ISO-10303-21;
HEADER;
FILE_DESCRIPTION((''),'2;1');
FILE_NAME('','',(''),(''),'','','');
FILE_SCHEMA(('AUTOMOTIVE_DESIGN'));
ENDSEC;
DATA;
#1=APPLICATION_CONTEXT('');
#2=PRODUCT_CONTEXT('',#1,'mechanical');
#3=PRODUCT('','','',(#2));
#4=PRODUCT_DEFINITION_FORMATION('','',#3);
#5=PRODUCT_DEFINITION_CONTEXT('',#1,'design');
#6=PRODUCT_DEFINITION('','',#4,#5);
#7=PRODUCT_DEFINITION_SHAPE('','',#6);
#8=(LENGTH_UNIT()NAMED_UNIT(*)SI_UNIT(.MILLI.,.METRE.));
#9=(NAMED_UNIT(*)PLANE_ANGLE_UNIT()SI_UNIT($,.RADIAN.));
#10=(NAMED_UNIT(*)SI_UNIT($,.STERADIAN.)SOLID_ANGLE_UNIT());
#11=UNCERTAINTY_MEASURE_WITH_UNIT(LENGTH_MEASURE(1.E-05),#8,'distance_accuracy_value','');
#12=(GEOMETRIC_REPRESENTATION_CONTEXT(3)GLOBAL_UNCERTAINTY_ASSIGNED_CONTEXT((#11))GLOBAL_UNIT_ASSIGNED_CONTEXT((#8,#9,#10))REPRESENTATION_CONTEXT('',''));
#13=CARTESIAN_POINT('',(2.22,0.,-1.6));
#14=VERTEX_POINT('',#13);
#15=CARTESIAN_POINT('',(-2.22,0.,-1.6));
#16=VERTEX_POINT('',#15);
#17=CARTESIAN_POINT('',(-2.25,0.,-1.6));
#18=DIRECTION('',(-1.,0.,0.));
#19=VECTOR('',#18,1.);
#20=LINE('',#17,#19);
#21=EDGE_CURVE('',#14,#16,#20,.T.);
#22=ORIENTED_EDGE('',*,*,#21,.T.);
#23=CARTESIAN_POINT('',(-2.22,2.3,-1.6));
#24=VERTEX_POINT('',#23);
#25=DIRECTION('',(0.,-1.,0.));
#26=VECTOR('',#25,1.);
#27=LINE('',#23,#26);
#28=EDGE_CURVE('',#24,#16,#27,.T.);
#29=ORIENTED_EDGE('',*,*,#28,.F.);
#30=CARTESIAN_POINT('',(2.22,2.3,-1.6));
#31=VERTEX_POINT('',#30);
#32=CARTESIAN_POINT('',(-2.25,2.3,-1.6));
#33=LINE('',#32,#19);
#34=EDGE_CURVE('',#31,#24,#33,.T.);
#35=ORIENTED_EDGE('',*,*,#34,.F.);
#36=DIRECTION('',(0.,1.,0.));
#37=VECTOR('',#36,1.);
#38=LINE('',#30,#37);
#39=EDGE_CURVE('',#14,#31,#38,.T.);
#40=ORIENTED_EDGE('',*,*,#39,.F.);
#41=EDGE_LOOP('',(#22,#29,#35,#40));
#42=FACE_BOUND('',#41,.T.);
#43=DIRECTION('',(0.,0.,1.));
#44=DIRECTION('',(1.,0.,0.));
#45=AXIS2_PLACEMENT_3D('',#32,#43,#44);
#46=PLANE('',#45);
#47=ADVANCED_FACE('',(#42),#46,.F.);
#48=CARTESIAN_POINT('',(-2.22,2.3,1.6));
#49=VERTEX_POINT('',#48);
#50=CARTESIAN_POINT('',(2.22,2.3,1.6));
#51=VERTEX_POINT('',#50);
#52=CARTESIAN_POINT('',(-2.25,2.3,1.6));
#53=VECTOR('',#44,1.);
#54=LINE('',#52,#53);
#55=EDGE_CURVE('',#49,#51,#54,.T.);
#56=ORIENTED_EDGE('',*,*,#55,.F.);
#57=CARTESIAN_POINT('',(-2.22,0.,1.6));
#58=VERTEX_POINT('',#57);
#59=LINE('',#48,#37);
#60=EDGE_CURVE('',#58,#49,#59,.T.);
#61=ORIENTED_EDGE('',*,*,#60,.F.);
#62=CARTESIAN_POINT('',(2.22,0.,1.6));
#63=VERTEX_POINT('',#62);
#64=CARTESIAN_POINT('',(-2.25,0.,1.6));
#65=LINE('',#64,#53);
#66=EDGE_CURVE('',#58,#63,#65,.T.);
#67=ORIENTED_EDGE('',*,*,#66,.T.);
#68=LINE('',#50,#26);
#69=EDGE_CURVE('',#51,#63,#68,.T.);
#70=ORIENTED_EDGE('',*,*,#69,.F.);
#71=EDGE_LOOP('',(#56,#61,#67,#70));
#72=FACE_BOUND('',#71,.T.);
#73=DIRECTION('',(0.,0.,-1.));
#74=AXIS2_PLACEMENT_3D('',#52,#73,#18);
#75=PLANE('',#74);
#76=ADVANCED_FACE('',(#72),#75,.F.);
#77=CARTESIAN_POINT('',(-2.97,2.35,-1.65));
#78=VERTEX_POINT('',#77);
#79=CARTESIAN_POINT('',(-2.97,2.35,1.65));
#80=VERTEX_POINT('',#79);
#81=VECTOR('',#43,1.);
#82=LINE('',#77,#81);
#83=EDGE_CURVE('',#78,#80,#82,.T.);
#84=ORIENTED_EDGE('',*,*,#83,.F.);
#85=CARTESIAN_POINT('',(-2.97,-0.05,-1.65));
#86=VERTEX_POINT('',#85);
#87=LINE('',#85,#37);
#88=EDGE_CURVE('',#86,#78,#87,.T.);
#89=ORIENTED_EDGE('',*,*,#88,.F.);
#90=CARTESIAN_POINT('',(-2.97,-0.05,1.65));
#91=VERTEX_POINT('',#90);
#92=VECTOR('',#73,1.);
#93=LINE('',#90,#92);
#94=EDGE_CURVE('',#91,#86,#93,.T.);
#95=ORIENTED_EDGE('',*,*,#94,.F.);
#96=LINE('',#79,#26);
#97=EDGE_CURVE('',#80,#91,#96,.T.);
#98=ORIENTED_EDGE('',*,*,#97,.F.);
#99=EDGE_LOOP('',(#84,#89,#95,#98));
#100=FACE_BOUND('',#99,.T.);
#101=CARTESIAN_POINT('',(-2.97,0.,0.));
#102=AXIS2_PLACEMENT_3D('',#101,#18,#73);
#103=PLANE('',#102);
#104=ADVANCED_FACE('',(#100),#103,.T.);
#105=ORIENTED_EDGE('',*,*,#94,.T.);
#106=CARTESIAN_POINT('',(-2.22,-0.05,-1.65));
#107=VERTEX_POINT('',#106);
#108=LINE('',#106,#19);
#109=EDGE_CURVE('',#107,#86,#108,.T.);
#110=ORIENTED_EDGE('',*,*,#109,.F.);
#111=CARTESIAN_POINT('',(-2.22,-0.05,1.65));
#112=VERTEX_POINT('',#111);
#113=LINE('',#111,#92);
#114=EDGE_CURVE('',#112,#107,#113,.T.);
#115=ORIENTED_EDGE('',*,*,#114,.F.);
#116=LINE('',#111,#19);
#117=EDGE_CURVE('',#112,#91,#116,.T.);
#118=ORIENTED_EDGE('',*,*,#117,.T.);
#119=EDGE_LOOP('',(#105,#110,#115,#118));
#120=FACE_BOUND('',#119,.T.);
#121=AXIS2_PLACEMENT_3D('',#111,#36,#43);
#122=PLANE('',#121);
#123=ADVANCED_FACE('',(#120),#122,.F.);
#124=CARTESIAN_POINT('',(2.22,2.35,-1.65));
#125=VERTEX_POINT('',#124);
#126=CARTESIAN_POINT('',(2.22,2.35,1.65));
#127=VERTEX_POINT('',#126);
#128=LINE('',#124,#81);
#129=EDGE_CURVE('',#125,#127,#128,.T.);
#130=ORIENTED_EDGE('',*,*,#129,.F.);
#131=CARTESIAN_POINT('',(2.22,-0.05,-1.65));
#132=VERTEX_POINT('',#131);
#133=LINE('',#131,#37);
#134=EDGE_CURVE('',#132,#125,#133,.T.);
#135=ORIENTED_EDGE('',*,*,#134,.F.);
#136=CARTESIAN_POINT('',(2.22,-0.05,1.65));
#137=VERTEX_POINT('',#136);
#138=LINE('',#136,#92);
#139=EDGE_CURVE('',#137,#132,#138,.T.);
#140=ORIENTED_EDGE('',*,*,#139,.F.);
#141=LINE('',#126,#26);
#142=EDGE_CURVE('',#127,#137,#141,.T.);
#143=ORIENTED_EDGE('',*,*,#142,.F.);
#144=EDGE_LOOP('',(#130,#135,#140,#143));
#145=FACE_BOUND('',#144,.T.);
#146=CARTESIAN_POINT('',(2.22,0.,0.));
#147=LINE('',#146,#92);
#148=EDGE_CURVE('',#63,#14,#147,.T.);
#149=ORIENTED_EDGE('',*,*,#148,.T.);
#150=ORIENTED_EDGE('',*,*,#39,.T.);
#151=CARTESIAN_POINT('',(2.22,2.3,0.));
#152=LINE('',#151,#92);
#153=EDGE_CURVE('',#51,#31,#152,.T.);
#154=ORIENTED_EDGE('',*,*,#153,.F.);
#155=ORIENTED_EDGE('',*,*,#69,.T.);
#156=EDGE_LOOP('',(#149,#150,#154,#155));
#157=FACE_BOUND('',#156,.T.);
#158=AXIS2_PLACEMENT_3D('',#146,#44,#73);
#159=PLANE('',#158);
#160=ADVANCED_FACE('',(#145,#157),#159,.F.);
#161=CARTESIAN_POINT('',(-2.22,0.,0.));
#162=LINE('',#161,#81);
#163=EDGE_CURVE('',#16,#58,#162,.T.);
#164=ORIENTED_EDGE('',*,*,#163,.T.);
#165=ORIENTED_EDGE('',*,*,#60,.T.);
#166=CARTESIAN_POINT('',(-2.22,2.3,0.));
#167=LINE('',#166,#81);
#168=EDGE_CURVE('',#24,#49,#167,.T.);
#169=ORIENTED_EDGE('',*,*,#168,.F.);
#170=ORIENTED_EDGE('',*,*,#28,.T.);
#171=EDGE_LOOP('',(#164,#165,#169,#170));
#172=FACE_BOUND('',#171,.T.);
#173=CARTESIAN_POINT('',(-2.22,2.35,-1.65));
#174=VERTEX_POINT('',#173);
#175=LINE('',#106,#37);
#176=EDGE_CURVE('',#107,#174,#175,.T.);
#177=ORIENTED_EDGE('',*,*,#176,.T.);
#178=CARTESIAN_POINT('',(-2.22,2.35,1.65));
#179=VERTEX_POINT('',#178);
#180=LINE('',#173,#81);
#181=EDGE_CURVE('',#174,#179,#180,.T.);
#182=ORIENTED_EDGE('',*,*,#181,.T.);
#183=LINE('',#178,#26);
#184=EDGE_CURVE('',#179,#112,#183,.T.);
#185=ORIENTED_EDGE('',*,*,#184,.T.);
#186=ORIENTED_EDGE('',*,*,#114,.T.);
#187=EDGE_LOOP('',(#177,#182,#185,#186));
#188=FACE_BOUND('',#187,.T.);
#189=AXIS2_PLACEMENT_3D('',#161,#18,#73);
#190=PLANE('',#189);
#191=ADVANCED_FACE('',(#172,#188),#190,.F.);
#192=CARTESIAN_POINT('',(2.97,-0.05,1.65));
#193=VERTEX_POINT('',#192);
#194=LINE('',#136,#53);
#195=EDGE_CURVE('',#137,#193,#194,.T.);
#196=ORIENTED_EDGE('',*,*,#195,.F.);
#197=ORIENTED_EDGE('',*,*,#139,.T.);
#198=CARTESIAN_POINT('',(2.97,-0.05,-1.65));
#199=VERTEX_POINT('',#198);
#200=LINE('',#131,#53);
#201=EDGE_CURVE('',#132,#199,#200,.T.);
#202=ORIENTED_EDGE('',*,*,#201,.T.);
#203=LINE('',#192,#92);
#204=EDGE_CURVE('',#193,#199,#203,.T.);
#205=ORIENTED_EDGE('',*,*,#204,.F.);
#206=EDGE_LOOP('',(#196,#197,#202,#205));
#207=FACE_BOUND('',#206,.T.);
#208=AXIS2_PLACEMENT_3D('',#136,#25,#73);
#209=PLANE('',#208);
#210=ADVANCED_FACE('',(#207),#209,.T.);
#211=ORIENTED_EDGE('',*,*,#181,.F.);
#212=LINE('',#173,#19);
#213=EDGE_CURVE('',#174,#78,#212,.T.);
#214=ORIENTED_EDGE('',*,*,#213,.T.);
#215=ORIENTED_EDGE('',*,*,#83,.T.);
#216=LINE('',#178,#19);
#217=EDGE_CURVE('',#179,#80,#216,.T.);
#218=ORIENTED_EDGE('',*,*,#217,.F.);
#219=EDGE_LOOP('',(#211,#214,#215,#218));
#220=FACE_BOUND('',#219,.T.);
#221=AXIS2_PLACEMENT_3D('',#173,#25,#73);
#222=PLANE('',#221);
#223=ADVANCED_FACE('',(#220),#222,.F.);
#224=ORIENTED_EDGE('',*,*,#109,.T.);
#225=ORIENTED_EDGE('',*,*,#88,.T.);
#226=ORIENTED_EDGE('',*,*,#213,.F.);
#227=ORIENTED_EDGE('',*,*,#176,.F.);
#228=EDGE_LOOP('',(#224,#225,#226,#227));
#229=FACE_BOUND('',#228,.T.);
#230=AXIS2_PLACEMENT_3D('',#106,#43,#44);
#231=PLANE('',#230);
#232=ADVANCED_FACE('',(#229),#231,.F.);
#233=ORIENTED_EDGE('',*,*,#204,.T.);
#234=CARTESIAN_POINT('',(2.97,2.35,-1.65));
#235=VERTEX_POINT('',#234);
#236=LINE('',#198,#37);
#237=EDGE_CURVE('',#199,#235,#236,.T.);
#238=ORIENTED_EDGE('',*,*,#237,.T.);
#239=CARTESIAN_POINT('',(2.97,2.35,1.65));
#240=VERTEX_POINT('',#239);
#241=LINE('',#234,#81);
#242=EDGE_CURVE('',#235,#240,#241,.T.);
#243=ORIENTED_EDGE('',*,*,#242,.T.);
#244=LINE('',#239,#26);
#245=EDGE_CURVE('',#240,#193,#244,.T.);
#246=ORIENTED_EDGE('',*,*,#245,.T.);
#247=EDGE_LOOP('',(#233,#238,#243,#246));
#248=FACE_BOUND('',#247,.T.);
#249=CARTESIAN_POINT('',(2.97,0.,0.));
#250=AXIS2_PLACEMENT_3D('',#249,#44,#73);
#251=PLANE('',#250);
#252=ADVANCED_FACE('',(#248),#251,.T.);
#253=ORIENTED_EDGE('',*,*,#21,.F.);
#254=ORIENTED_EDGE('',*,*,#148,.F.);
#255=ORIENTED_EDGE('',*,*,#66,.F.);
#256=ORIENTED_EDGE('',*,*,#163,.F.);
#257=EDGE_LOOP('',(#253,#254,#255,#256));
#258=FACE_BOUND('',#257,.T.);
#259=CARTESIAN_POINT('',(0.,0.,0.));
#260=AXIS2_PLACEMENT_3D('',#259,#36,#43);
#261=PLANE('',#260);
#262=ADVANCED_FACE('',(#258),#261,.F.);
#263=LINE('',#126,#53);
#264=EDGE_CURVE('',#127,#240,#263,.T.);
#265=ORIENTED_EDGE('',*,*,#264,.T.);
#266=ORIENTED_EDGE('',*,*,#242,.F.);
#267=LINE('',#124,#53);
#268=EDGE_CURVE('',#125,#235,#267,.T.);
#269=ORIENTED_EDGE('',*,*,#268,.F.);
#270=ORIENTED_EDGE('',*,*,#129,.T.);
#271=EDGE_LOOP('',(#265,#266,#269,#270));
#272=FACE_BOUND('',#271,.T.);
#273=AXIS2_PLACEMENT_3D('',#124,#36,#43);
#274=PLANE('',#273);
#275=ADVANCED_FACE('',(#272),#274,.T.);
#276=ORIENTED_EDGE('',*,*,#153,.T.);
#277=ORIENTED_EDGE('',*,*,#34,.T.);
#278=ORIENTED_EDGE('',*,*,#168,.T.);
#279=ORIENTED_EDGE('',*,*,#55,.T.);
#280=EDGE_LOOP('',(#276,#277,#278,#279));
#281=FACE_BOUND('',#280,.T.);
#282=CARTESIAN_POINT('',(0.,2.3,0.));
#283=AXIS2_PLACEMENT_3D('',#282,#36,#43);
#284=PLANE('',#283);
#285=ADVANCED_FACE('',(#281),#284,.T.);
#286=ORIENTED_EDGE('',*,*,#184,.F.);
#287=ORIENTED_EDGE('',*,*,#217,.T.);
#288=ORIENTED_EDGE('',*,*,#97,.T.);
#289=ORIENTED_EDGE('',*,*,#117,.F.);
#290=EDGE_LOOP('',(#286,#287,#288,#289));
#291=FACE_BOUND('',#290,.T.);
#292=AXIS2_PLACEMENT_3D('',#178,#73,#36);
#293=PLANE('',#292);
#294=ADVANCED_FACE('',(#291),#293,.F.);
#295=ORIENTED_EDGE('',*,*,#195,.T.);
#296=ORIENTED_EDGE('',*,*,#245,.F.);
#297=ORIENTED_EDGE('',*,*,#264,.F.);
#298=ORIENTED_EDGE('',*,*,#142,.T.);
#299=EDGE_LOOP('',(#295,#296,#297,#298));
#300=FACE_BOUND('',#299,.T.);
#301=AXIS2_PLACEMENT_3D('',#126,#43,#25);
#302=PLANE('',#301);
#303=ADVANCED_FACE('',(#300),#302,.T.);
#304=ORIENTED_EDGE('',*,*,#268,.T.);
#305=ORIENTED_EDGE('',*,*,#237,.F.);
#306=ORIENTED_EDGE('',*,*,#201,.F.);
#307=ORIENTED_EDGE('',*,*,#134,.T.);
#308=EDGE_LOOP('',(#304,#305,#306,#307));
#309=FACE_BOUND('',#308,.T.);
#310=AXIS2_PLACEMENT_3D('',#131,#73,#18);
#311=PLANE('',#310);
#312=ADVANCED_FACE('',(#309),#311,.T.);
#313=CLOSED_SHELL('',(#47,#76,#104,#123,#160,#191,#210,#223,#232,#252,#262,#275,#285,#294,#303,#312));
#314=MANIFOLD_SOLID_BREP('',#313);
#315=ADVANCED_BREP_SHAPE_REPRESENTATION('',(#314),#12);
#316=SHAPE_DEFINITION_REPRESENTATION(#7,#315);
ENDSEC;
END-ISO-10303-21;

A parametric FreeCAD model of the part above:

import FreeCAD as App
import Part
import Sketcher
Q = App.Units.Quantity

doc = App.newDocument("Part")
body = doc.addObject("PartDesign::Body", "Body")

# Sketch on XZ plane
sketch1 = body.newObject("Sketcher::SketchObject", "Sketch")
sketch1.AttachmentSupport = (doc.getObject("XZ_Plane"), [""])
sketch1.MapMode = "FlatFace"
sketch1.addGeometry([
    Part.LineSegment(App.Vector(-2.2, -1.6, 0), App.Vector(-2.2, 1.6, 0)),
    Part.LineSegment(App.Vector(-2.2, 1.6, 0), App.Vector(2.2, 1.6, 0)),
    Part.LineSegment(App.Vector(2.2, 1.6, 0), App.Vector(2.2, -1.6, 0)),
    Part.LineSegment(App.Vector(2.2, -1.6, 0), App.Vector(-2.2, -1.6, 0)),
], False)
sketch1.addConstraint([
    Sketcher.Constraint("Coincident", 0, 2, 1, 1),
    Sketcher.Constraint("Coincident", 1, 2, 2, 1),
    Sketcher.Constraint("Coincident", 2, 2, 3, 1),
    Sketcher.Constraint("Coincident", 3, 2, 0, 1),
    Sketcher.Constraint("Vertical", 0),
    Sketcher.Constraint("Horizontal", 1),
    Sketcher.Constraint("Vertical", 2),
    Sketcher.Constraint("Horizontal", 3),
    Sketcher.Constraint("Symmetric", 0, 2, 2, 2, -1, 1),
    Sketcher.Constraint("DistanceX", 1, 1, 1, 2, Q("4.5 mm")),
    Sketcher.Constraint("DistanceY", 0, 1, 0, 2, Q("3.2 mm")),
])
pad1 = body.newObject("PartDesign::Pad", "Pad")
pad1.Profile = sketch1
pad1.Length = 2.3
pad1.Reversed = True

# Sketch on YZ plane
sketch2 = body.newObject("Sketcher::SketchObject", "Sketch001")
sketch2.AttachmentSupport = (doc.getObject("YZ_Plane"), [""])
sketch2.MapMode = "FlatFace"
sketch2.AttachmentOffset = App.Placement(App.Vector(0, 0, 2.22), App.Rotation())
sketch2.addGeometry([
    Part.LineSegment(App.Vector(2.4, 1.6, 0), App.Vector(-0.1, 1.6, 0)),
    Part.LineSegment(App.Vector(-0.1, 1.6, 0), App.Vector(-0.1, -1.6, 0)),
    Part.LineSegment(App.Vector(-0.1, -1.6, 0), App.Vector(2.4, -1.6, 0)),
    Part.LineSegment(App.Vector(2.4, -1.6, 0), App.Vector(2.4, 1.6, 0)),
], False)
sketch2.addConstraint([
    Sketcher.Constraint("Coincident", 0, 2, 1, 1),
    Sketcher.Constraint("Coincident", 1, 2, 2, 1),
    Sketcher.Constraint("Coincident", 2, 2, 3, 1),
    Sketcher.Constraint("Coincident", 3, 2, 0, 1),
    Sketcher.Constraint("Horizontal", 0),
    Sketcher.Constraint("Vertical", 1),
    Sketcher.Constraint("Horizontal", 2),
    Sketcher.Constraint("Vertical", 3),
    Sketcher.Constraint("DistanceX", 0, 2, 0, 1, Q("2.4 mm")),
    Sketcher.Constraint("DistanceY", 1, 2, 1, 1, Q("3.3 mm")),
    Sketcher.Constraint("DistanceX", 0, 2, -1, 1, Q("0.05 mm")),
    Sketcher.Constraint("DistanceY", -1, 1, 0, 2, Q("1.65 mm")),
])
pad2 = body.newObject("PartDesign::Pad", "Pad001")
pad2.Profile = sketch2
pad2.Length = 0.75
doc.recompute()

mirrored = body.newObject("PartDesign::Mirrored", "Mirrored")
mirrored.Originals = [pad2]
mirrored.MirrorPlane = (doc.getObject("YZ_Plane"), [""])
body.Tip = mirrored

doc.recompute()
